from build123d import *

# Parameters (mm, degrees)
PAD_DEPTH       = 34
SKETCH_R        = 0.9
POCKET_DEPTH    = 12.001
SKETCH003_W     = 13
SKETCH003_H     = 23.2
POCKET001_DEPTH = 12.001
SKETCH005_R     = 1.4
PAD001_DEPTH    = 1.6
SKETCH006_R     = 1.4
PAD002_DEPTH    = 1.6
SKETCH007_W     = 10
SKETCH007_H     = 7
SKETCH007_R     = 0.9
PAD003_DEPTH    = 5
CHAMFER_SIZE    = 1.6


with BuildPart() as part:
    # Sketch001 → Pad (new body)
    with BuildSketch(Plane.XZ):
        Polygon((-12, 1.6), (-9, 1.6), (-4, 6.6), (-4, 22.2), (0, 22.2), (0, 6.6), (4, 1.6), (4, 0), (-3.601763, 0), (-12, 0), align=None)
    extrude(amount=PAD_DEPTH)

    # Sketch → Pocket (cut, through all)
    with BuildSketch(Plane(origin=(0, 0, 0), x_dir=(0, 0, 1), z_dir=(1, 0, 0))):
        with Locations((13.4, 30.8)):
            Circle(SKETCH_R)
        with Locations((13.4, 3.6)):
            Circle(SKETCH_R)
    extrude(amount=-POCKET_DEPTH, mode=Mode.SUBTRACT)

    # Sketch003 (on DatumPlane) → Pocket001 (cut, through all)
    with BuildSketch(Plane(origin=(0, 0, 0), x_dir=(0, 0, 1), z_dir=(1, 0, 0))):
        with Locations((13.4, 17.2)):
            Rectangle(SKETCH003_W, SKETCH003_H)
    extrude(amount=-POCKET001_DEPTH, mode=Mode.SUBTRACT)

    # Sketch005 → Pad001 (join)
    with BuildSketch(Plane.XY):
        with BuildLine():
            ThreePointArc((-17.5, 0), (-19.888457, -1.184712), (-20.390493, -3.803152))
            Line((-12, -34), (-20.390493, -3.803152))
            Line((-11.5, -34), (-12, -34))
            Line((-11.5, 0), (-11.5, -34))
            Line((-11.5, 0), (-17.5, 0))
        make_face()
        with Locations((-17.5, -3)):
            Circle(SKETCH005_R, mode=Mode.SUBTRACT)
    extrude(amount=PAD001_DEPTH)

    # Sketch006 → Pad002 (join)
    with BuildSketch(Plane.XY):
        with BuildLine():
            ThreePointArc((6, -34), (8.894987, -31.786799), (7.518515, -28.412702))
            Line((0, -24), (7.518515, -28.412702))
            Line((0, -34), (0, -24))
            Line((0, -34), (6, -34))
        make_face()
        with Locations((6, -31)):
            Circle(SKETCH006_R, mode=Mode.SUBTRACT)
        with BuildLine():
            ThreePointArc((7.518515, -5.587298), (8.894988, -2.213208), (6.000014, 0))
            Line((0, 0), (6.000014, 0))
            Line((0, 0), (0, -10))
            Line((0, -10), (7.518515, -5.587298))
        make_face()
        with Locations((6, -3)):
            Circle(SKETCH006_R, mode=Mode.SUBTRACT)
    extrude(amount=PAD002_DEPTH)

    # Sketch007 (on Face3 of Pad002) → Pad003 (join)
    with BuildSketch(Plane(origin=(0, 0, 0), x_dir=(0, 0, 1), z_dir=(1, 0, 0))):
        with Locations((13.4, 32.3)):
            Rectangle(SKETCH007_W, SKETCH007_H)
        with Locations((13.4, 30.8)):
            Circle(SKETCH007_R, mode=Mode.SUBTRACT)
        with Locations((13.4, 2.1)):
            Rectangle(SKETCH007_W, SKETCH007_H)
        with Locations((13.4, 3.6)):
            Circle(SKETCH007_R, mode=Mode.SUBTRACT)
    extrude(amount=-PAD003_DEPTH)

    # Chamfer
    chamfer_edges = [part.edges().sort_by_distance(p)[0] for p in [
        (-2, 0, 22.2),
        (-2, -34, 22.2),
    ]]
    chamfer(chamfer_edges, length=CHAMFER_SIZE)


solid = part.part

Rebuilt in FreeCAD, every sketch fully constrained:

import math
import FreeCAD as App
import Part
import Sketcher
from FreeCAD import Vector
Q = App.Units.Quantity


def edges_at(feature, points):
    """Names of the edges that pass closest to the given points."""
    edges = feature.Shape.Edges
    near = lambda p: min(range(len(edges)), key=lambda i: edges[i].distToShape(Part.Vertex(*p))[0])
    return sorted({f"Edge{near(p) + 1}" for p in points})


def add_polygon(sketch, points):
    """Adds a closed chain of lines whose ends are joined by coincident constraints."""
    first, n = sketch.GeometryCount, len(points)
    for a, b in zip(points, points[1:] + points[:1]):
        sketch.addGeometry(Part.LineSegment(App.Vector(*a, 0), App.Vector(*b, 0)), False)
    for i in range(n):
        sketch.addConstraint(Sketcher.Constraint("Coincident", first + i, 2, first + (i + 1) % n, 1))

doc = App.newDocument("Part")
body = doc.addObject("PartDesign::Body", "Body")

# Sketch on XZ plane
sketch1 = doc.addObject("Sketcher::SketchObject", "Sketch")
body.addObject(sketch1)
sketch1.AttachmentSupport = (doc.XZ_Plane, [""])
sketch1.MapMode = "FlatFace"
add_polygon(sketch1, [(-9, 1.6), (-12, 1.6), (-12, 0), (4, 0), (4, 1.6), (0, 6.6), (0, 22.2), (-4, 22.2), (-4, 6.6)])  # lines 0-8
sketch1.addConstraint(Sketcher.Constraint("Horizontal", 0))
sketch1.addConstraint(Sketcher.Constraint("Vertical", 1))
sketch1.addConstraint(Sketcher.Constraint("Horizontal", 2))
sketch1.addConstraint(Sketcher.Constraint("Vertical", 3))
sketch1.addConstraint(Sketcher.Constraint("Vertical", 5))
sketch1.addConstraint(Sketcher.Constraint("Horizontal", 6))
sketch1.addConstraint(Sketcher.Constraint("Vertical", 7))
sketch1.addConstraint(Sketcher.Constraint("PointOnObject", 1, 2, -1))
sketch1.addConstraint(Sketcher.Constraint("PointOnObject", 4, 2, -2))
sketch1.addConstraint(Sketcher.Constraint("Horizontal", 0, 2, 3, 2))
sketch1.addConstraint(Sketcher.Constraint("Horizontal", 4, 2, 7, 2))
sketch1.addConstraint(Sketcher.Constraint("DistanceX", 0, 2, 0, 1, Q("3 mm")))
sketch1.addConstraint(Sketcher.Constraint("DistanceX", 2, 1, 2, 2, Q("16 mm")))
sketch1.addConstraint(Sketcher.Constraint("DistanceX", 6, 2, 6, 1, Q("4 mm")))
sketch1.addConstraint(Sketcher.Constraint("Angle", 8, Q("-135 deg")))
sketch1.addConstraint(Sketcher.Constraint("DistanceY", 1, 2, 1, 1, Q("1.6 mm")))
sketch1.addConstraint(Sketcher.Constraint("DistanceY", 5, 1, 5, 2, Q("15.6 mm")))
sketch1.addConstraint(Sketcher.Constraint("DistanceX", 0, 2, -1, 1, Q("12 mm")))
pad1 = doc.addObject("PartDesign::Pad", "Pad")
body.addObject(pad1)
pad1.Profile = sketch1
pad1.Length = 34

# Sketch on YZ plane
sketch2 = doc.addObject("Sketcher::SketchObject", "Sketch001")
body.addObject(sketch2)
sketch2.AttachmentSupport = (doc.YZ_Plane, [""])
sketch2.MapMode = "FlatFace"
sketch2.addGeometry(Part.Circle(Vector(-30.8, 13.4, 0), Vector(0, 0, 1), 0.9), False)
sketch2.addGeometry(Part.Circle(Vector(-3.6, 13.4, 0), Vector(0, 0, 1), 0.9), False)
sketch2.addConstraint(Sketcher.Constraint("Equal", 0, 1))
sketch2.addConstraint(Sketcher.Constraint("Horizontal", 0, 3, 1, 3))
sketch2.addConstraint(Sketcher.Constraint("Diameter", 0, Q("1.8 mm")))
sketch2.addConstraint(Sketcher.Constraint("DistanceX", 0, 3, -1, 1, Q("30.8 mm")))
sketch2.addConstraint(Sketcher.Constraint("DistanceY", -1, 1, 0, 3, Q("13.4 mm")))
sketch2.addConstraint(Sketcher.Constraint("DistanceX", 1, 3, -1, 1, Q("3.6 mm")))
pocket1 = doc.addObject("PartDesign::Pocket", "Pocket")
body.addObject(pocket1)
pocket1.Profile = sketch2
pocket1.Type = "ThroughAll"

# Sketch on YZ plane
sketch3 = doc.addObject("Sketcher::SketchObject", "Sketch002")
body.addObject(sketch3)
sketch3.AttachmentSupport = (doc.YZ_Plane, [""])
sketch3.MapMode = "FlatFace"
add_polygon(sketch3, [(-28.8, 6.9), (-5.6, 6.9), (-5.6, 19.9), (-28.8, 19.9)])  # lines 0-3
sketch3.addConstraint(Sketcher.Constraint("Horizontal", 0))
sketch3.addConstraint(Sketcher.Constraint("Vertical", 1))
sketch3.addConstraint(Sketcher.Constraint("Horizontal", 2))
sketch3.addConstraint(Sketcher.Constraint("Vertical", 3))
sketch3.addConstraint(Sketcher.Constraint("DistanceY", 1, 1, 1, 2, Q("13 mm")))
sketch3.addConstraint(Sketcher.Constraint("DistanceX", 0, 1, 0, 2, Q("23.2 mm")))
sketch3.addConstraint(Sketcher.Constraint("DistanceX", 0, 2, -1, 1, Q("5.6 mm")))
sketch3.addConstraint(Sketcher.Constraint("DistanceY", -1, 1, 0, 2, Q("6.9 mm")))
pocket2 = doc.addObject("PartDesign::Pocket", "Pocket001")
body.addObject(pocket2)
pocket2.Profile = sketch3
pocket2.Type = "ThroughAll"

# Sketch on XY plane
sketch4 = doc.addObject("Sketcher::SketchObject", "Sketch003")
body.addObject(sketch4)
sketch4.AttachmentSupport = (doc.XY_Plane, [""])
sketch4.MapMode = "FlatFace"
sketch4.addGeometry(Part.ArcOfCircle(Part.Circle(Vector(-17.499999, -3.000001, 0), Vector(0, 0, 1), 3.000001), math.radians(90.000023), math.radians(195.528448)), False)
sketch4.addGeometry(Part.LineSegment(Vector(-20.390493, -3.803152, 0), Vector(-12, -34, 0)), False)
sketch4.addGeometry(Part.LineSegment(Vector(-12, -34, 0), Vector(-11.5, -34, 0)), False)
sketch4.addGeometry(Part.LineSegment(Vector(-11.5, -34, 0), Vector(-11.5, 0, 0)), False)
sketch4.addGeometry(Part.LineSegment(Vector(-11.5, 0, 0), Vector(-17.5, 0, 0)), False)
sketch4.addGeometry(Part.Circle(Vector(-17.5, -3, 0), Vector(0, 0, 1), 1.4), False)
sketch4.addConstraint(Sketcher.Constraint("Tangent", 0, 2, 1, 1))
sketch4.addConstraint(Sketcher.Constraint("Coincident", 1, 2, 2, 1))
sketch4.addConstraint(Sketcher.Constraint("Coincident", 2, 2, 3, 1))
sketch4.addConstraint(Sketcher.Constraint("Coincident", 3, 2, 4, 1))
sketch4.addConstraint(Sketcher.Constraint("Tangent", 4, 2, 0, 1))
sketch4.addConstraint(Sketcher.Constraint("Horizontal", 2))
sketch4.addConstraint(Sketcher.Constraint("Vertical", 3))
sketch4.addConstraint(Sketcher.Constraint("Horizontal", 4))
sketch4.addConstraint(Sketcher.Constraint("Coincident", 5, 3, 0, 3))
sketch4.addConstraint(Sketcher.Constraint("PointOnObject", 3, 2, -1))
sketch4.addConstraint(Sketcher.Constraint("Radius", 0, Q("3.000001 mm")))
sketch4.addConstraint(Sketcher.Constraint("Diameter", 5, Q("2.8 mm")))
sketch4.addConstraint(Sketcher.Constraint("DistanceX", 4, 2, 4, 1, Q("6 mm")))
sketch4.addConstraint(Sketcher.Constraint("DistanceY", 3, 1, 3, 2, Q("34 mm")))
sketch4.addConstraint(Sketcher.Constraint("DistanceX", 2, 1, 2, 2, Q("0.5 mm")))
sketch4.addConstraint(Sketcher.Constraint("DistanceX", 1, 2, -1, 1, Q("12 mm")))
pad2 = doc.addObject("PartDesign::Pad", "Pad001")
body.addObject(pad2)
pad2.Profile = sketch4
pad2.Length = 1.6

# Sketch on XY plane
sketch5 = doc.addObject("Sketcher::SketchObject", "Sketch004")
body.addObject(sketch5)
sketch5.AttachmentSupport = (doc.XY_Plane, [""])
sketch5.MapMode = "FlatFace"
sketch5.addGeometry(Part.ArcOfCircle(Part.Circle(Vector(6.000001, -31, 0), Vector(0, 0, 1), 3), math.radians(-90.000012), math.radians(59.59085)), False)
sketch5.addGeometry(Part.LineSegment(Vector(7.518515, -28.412702, 0), Vector(0, -24, 0)), False)
sketch5.addGeometry(Part.LineSegment(Vector(0, -24, 0), Vector(0, -34, 0)), False)
sketch5.addGeometry(Part.LineSegment(Vector(0, -34, 0), Vector(6, -34, 0)), False)
sketch5.addGeometry(Part.Circle(Vector(6, -31, 0), Vector(0, 0, 1), 1.4), False)
sketch5.addGeometry(Part.ArcOfCircle(Part.Circle(Vector(5.999999, -3, 0), Vector(0, 0, 1), 3), math.radians(-59.590828), math.radians(89.999723)), False)
sketch5.addGeometry(Part.LineSegment(Vector(6.000014, 0, 0), Vector(0, 0, 0)), False)
sketch5.addGeometry(Part.LineSegment(Vector(0, 0, 0), Vector(0, -10, 0)), False)
sketch5.addGeometry(Part.LineSegment(Vector(0, -10, 0), Vector(7.518515, -5.587298, 0)), False)
sketch5.addGeometry(Part.Circle(Vector(6, -3, 0), Vector(0, 0, 1), 1.4), False)
sketch5.addConstraint(Sketcher.Constraint("Tangent", 0, 2, 1, 1))
sketch5.addConstraint(Sketcher.Constraint("Coincident", 1, 2, 2, 1))
sketch5.addConstraint(Sketcher.Constraint("Coincident", 2, 2, 3, 1))
sketch5.addConstraint(Sketcher.Constraint("Tangent", 3, 2, 0, 1))
sketch5.addConstraint(Sketcher.Constraint("Coincident", 5, 2, 6, 1))
sketch5.addConstraint(Sketcher.Constraint("Coincident", 6, 2, 7, 1))
sketch5.addConstraint(Sketcher.Constraint("Coincident", 7, 2, 8, 1))
sketch5.addConstraint(Sketcher.Constraint("Tangent", 8, 2, 5, 1))
sketch5.addConstraint(Sketcher.Constraint("Vertical", 2))
sketch5.addConstraint(Sketcher.Constraint("Horizontal", 3))
sketch5.addConstraint(Sketcher.Constraint("Horizontal", 6))
sketch5.addConstraint(Sketcher.Constraint("Vertical", 7))
sketch5.addConstraint(Sketcher.Constraint("Coincident", 6, 2, -1, 1))
sketch5.addConstraint(Sketcher.Constraint("Coincident", 4, 3, 0, 3))
sketch5.addConstraint(Sketcher.Constraint("Coincident", 9, 3, 5, 3))
sketch5.addConstraint(Sketcher.Constraint("Equal", 0, 5))
sketch5.addConstraint(Sketcher.Constraint("Equal", 4, 9))
sketch5.addConstraint(Sketcher.Constraint("PointOnObject", 1, 2, -2))
sketch5.addConstraint(Sketcher.Constraint("Vertical", 4, 3, 5, 3))
sketch5.addConstraint(Sketcher.Constraint("Vertical", 0, 2, 8, 2))
sketch5.addConstraint(Sketcher.Constraint("Radius", 0, Q("3 mm")))
sketch5.addConstraint(Sketcher.Constraint("Diameter", 4, Q("2.8 mm")))
sketch5.addConstraint(Sketcher.Constraint("DistanceX", 3, 1, 3, 2, Q("6 mm")))
sketch5.addConstraint(Sketcher.Constraint("DistanceY", 2, 2, 2, 1, Q("10 mm")))
sketch5.addConstraint(Sketcher.Constraint("DistanceY", 0, 3, -1, 1, Q("31 mm")))
sketch5.addConstraint(Sketcher.Constraint("DistanceX", 5, 2, 0, 2, Q("1.518501 mm")))
pad3 = doc.addObject("PartDesign::Pad", "Pad002")
body.addObject(pad3)
pad3.Profile = sketch5
pad3.Length = 1.6

# Sketch on YZ plane
sketch6 = doc.addObject("Sketcher::SketchObject", "Sketch005")
body.addObject(sketch6)
sketch6.AttachmentSupport = (doc.YZ_Plane, [""])
sketch6.MapMode = "FlatFace"
add_polygon(sketch6, [(-35.8, 8.4), (-28.8, 8.4), (-28.8, 18.4), (-35.8, 18.4)])  # lines 0-3
sketch6.addGeometry(Part.Circle(Vector(-30.8, 13.4, 0), Vector(0, 0, 1), 0.9), False)  # 4
add_polygon(sketch6, [(-5.6, 8.4), (1.4, 8.4), (1.4, 18.4), (-5.6, 18.4)])  # lines 5-8
sketch6.addGeometry(Part.Circle(Vector(-3.6, 13.4, 0), Vector(0, 0, 1), 0.9), False)  # 9
sketch6.addConstraint(Sketcher.Constraint("Horizontal", 0))
sketch6.addConstraint(Sketcher.Constraint("Vertical", 1))
sketch6.addConstraint(Sketcher.Constraint("Horizontal", 2))
sketch6.addConstraint(Sketcher.Constraint("Vertical", 3))
sketch6.addConstraint(Sketcher.Constraint("Horizontal", 5))
sketch6.addConstraint(Sketcher.Constraint("Vertical", 6))
sketch6.addConstraint(Sketcher.Constraint("Horizontal", 7))
sketch6.addConstraint(Sketcher.Constraint("Vertical", 8))
sketch6.addConstraint(Sketcher.Constraint("Equal", 4, 9))
sketch6.addConstraint(Sketcher.Constraint("Horizontal", 4, 3, 9, 3))
sketch6.addConstraint(Sketcher.Constraint("Horizontal", 3, 2, 5, 2))
sketch6.addConstraint(Sketcher.Constraint("Horizontal", 2, 2, 6, 2))
sketch6.addConstraint(Sketcher.Constraint("Equal", 2, 5))
sketch6.addConstraint(Sketcher.Constraint("Diameter", 4, Q("1.8 mm")))
sketch6.addConstraint(Sketcher.Constraint("DistanceX", 0, 1, 0, 2, Q("7 mm")))
sketch6.addConstraint(Sketcher.Constraint("DistanceY", 1, 1, 1, 2, Q("10 mm")))
sketch6.addConstraint(Sketcher.Constraint("DistanceX", 4, 3, 0, 2, Q("2 mm")))
sketch6.addConstraint(Sketcher.Constraint("DistanceY", 0, 2, 4, 3, Q("5 mm")))
sketch6.addConstraint(Sketcher.Constraint("DistanceX", 9, 3, 5, 2, Q("5 mm")))
sketch6.addConstraint(Sketcher.Constraint("DistanceX", 4, 3, -1, 1, Q("30.8 mm")))
sketch6.addConstraint(Sketcher.Constraint("DistanceY", -1, 1, 4, 3, Q("13.4 mm")))
sketch6.addConstraint(Sketcher.Constraint("DistanceX", 9, 3, -1, 1, Q("3.6 mm")))
pad4 = doc.addObject("PartDesign::Pad", "Pad003")
body.addObject(pad4)
pad4.Profile = sketch6
pad4.Length = 5
pad4.Reversed = True
doc.recompute()

chamfer = doc.addObject("PartDesign::Chamfer", "Chamfer")
body.addObject(chamfer)
chamfer.Base = (pad4, edges_at(pad4, [(-2, 0, 22.2), (-2, -34, 22.2)]))
chamfer.Size = 1.6

doc.recompute()
